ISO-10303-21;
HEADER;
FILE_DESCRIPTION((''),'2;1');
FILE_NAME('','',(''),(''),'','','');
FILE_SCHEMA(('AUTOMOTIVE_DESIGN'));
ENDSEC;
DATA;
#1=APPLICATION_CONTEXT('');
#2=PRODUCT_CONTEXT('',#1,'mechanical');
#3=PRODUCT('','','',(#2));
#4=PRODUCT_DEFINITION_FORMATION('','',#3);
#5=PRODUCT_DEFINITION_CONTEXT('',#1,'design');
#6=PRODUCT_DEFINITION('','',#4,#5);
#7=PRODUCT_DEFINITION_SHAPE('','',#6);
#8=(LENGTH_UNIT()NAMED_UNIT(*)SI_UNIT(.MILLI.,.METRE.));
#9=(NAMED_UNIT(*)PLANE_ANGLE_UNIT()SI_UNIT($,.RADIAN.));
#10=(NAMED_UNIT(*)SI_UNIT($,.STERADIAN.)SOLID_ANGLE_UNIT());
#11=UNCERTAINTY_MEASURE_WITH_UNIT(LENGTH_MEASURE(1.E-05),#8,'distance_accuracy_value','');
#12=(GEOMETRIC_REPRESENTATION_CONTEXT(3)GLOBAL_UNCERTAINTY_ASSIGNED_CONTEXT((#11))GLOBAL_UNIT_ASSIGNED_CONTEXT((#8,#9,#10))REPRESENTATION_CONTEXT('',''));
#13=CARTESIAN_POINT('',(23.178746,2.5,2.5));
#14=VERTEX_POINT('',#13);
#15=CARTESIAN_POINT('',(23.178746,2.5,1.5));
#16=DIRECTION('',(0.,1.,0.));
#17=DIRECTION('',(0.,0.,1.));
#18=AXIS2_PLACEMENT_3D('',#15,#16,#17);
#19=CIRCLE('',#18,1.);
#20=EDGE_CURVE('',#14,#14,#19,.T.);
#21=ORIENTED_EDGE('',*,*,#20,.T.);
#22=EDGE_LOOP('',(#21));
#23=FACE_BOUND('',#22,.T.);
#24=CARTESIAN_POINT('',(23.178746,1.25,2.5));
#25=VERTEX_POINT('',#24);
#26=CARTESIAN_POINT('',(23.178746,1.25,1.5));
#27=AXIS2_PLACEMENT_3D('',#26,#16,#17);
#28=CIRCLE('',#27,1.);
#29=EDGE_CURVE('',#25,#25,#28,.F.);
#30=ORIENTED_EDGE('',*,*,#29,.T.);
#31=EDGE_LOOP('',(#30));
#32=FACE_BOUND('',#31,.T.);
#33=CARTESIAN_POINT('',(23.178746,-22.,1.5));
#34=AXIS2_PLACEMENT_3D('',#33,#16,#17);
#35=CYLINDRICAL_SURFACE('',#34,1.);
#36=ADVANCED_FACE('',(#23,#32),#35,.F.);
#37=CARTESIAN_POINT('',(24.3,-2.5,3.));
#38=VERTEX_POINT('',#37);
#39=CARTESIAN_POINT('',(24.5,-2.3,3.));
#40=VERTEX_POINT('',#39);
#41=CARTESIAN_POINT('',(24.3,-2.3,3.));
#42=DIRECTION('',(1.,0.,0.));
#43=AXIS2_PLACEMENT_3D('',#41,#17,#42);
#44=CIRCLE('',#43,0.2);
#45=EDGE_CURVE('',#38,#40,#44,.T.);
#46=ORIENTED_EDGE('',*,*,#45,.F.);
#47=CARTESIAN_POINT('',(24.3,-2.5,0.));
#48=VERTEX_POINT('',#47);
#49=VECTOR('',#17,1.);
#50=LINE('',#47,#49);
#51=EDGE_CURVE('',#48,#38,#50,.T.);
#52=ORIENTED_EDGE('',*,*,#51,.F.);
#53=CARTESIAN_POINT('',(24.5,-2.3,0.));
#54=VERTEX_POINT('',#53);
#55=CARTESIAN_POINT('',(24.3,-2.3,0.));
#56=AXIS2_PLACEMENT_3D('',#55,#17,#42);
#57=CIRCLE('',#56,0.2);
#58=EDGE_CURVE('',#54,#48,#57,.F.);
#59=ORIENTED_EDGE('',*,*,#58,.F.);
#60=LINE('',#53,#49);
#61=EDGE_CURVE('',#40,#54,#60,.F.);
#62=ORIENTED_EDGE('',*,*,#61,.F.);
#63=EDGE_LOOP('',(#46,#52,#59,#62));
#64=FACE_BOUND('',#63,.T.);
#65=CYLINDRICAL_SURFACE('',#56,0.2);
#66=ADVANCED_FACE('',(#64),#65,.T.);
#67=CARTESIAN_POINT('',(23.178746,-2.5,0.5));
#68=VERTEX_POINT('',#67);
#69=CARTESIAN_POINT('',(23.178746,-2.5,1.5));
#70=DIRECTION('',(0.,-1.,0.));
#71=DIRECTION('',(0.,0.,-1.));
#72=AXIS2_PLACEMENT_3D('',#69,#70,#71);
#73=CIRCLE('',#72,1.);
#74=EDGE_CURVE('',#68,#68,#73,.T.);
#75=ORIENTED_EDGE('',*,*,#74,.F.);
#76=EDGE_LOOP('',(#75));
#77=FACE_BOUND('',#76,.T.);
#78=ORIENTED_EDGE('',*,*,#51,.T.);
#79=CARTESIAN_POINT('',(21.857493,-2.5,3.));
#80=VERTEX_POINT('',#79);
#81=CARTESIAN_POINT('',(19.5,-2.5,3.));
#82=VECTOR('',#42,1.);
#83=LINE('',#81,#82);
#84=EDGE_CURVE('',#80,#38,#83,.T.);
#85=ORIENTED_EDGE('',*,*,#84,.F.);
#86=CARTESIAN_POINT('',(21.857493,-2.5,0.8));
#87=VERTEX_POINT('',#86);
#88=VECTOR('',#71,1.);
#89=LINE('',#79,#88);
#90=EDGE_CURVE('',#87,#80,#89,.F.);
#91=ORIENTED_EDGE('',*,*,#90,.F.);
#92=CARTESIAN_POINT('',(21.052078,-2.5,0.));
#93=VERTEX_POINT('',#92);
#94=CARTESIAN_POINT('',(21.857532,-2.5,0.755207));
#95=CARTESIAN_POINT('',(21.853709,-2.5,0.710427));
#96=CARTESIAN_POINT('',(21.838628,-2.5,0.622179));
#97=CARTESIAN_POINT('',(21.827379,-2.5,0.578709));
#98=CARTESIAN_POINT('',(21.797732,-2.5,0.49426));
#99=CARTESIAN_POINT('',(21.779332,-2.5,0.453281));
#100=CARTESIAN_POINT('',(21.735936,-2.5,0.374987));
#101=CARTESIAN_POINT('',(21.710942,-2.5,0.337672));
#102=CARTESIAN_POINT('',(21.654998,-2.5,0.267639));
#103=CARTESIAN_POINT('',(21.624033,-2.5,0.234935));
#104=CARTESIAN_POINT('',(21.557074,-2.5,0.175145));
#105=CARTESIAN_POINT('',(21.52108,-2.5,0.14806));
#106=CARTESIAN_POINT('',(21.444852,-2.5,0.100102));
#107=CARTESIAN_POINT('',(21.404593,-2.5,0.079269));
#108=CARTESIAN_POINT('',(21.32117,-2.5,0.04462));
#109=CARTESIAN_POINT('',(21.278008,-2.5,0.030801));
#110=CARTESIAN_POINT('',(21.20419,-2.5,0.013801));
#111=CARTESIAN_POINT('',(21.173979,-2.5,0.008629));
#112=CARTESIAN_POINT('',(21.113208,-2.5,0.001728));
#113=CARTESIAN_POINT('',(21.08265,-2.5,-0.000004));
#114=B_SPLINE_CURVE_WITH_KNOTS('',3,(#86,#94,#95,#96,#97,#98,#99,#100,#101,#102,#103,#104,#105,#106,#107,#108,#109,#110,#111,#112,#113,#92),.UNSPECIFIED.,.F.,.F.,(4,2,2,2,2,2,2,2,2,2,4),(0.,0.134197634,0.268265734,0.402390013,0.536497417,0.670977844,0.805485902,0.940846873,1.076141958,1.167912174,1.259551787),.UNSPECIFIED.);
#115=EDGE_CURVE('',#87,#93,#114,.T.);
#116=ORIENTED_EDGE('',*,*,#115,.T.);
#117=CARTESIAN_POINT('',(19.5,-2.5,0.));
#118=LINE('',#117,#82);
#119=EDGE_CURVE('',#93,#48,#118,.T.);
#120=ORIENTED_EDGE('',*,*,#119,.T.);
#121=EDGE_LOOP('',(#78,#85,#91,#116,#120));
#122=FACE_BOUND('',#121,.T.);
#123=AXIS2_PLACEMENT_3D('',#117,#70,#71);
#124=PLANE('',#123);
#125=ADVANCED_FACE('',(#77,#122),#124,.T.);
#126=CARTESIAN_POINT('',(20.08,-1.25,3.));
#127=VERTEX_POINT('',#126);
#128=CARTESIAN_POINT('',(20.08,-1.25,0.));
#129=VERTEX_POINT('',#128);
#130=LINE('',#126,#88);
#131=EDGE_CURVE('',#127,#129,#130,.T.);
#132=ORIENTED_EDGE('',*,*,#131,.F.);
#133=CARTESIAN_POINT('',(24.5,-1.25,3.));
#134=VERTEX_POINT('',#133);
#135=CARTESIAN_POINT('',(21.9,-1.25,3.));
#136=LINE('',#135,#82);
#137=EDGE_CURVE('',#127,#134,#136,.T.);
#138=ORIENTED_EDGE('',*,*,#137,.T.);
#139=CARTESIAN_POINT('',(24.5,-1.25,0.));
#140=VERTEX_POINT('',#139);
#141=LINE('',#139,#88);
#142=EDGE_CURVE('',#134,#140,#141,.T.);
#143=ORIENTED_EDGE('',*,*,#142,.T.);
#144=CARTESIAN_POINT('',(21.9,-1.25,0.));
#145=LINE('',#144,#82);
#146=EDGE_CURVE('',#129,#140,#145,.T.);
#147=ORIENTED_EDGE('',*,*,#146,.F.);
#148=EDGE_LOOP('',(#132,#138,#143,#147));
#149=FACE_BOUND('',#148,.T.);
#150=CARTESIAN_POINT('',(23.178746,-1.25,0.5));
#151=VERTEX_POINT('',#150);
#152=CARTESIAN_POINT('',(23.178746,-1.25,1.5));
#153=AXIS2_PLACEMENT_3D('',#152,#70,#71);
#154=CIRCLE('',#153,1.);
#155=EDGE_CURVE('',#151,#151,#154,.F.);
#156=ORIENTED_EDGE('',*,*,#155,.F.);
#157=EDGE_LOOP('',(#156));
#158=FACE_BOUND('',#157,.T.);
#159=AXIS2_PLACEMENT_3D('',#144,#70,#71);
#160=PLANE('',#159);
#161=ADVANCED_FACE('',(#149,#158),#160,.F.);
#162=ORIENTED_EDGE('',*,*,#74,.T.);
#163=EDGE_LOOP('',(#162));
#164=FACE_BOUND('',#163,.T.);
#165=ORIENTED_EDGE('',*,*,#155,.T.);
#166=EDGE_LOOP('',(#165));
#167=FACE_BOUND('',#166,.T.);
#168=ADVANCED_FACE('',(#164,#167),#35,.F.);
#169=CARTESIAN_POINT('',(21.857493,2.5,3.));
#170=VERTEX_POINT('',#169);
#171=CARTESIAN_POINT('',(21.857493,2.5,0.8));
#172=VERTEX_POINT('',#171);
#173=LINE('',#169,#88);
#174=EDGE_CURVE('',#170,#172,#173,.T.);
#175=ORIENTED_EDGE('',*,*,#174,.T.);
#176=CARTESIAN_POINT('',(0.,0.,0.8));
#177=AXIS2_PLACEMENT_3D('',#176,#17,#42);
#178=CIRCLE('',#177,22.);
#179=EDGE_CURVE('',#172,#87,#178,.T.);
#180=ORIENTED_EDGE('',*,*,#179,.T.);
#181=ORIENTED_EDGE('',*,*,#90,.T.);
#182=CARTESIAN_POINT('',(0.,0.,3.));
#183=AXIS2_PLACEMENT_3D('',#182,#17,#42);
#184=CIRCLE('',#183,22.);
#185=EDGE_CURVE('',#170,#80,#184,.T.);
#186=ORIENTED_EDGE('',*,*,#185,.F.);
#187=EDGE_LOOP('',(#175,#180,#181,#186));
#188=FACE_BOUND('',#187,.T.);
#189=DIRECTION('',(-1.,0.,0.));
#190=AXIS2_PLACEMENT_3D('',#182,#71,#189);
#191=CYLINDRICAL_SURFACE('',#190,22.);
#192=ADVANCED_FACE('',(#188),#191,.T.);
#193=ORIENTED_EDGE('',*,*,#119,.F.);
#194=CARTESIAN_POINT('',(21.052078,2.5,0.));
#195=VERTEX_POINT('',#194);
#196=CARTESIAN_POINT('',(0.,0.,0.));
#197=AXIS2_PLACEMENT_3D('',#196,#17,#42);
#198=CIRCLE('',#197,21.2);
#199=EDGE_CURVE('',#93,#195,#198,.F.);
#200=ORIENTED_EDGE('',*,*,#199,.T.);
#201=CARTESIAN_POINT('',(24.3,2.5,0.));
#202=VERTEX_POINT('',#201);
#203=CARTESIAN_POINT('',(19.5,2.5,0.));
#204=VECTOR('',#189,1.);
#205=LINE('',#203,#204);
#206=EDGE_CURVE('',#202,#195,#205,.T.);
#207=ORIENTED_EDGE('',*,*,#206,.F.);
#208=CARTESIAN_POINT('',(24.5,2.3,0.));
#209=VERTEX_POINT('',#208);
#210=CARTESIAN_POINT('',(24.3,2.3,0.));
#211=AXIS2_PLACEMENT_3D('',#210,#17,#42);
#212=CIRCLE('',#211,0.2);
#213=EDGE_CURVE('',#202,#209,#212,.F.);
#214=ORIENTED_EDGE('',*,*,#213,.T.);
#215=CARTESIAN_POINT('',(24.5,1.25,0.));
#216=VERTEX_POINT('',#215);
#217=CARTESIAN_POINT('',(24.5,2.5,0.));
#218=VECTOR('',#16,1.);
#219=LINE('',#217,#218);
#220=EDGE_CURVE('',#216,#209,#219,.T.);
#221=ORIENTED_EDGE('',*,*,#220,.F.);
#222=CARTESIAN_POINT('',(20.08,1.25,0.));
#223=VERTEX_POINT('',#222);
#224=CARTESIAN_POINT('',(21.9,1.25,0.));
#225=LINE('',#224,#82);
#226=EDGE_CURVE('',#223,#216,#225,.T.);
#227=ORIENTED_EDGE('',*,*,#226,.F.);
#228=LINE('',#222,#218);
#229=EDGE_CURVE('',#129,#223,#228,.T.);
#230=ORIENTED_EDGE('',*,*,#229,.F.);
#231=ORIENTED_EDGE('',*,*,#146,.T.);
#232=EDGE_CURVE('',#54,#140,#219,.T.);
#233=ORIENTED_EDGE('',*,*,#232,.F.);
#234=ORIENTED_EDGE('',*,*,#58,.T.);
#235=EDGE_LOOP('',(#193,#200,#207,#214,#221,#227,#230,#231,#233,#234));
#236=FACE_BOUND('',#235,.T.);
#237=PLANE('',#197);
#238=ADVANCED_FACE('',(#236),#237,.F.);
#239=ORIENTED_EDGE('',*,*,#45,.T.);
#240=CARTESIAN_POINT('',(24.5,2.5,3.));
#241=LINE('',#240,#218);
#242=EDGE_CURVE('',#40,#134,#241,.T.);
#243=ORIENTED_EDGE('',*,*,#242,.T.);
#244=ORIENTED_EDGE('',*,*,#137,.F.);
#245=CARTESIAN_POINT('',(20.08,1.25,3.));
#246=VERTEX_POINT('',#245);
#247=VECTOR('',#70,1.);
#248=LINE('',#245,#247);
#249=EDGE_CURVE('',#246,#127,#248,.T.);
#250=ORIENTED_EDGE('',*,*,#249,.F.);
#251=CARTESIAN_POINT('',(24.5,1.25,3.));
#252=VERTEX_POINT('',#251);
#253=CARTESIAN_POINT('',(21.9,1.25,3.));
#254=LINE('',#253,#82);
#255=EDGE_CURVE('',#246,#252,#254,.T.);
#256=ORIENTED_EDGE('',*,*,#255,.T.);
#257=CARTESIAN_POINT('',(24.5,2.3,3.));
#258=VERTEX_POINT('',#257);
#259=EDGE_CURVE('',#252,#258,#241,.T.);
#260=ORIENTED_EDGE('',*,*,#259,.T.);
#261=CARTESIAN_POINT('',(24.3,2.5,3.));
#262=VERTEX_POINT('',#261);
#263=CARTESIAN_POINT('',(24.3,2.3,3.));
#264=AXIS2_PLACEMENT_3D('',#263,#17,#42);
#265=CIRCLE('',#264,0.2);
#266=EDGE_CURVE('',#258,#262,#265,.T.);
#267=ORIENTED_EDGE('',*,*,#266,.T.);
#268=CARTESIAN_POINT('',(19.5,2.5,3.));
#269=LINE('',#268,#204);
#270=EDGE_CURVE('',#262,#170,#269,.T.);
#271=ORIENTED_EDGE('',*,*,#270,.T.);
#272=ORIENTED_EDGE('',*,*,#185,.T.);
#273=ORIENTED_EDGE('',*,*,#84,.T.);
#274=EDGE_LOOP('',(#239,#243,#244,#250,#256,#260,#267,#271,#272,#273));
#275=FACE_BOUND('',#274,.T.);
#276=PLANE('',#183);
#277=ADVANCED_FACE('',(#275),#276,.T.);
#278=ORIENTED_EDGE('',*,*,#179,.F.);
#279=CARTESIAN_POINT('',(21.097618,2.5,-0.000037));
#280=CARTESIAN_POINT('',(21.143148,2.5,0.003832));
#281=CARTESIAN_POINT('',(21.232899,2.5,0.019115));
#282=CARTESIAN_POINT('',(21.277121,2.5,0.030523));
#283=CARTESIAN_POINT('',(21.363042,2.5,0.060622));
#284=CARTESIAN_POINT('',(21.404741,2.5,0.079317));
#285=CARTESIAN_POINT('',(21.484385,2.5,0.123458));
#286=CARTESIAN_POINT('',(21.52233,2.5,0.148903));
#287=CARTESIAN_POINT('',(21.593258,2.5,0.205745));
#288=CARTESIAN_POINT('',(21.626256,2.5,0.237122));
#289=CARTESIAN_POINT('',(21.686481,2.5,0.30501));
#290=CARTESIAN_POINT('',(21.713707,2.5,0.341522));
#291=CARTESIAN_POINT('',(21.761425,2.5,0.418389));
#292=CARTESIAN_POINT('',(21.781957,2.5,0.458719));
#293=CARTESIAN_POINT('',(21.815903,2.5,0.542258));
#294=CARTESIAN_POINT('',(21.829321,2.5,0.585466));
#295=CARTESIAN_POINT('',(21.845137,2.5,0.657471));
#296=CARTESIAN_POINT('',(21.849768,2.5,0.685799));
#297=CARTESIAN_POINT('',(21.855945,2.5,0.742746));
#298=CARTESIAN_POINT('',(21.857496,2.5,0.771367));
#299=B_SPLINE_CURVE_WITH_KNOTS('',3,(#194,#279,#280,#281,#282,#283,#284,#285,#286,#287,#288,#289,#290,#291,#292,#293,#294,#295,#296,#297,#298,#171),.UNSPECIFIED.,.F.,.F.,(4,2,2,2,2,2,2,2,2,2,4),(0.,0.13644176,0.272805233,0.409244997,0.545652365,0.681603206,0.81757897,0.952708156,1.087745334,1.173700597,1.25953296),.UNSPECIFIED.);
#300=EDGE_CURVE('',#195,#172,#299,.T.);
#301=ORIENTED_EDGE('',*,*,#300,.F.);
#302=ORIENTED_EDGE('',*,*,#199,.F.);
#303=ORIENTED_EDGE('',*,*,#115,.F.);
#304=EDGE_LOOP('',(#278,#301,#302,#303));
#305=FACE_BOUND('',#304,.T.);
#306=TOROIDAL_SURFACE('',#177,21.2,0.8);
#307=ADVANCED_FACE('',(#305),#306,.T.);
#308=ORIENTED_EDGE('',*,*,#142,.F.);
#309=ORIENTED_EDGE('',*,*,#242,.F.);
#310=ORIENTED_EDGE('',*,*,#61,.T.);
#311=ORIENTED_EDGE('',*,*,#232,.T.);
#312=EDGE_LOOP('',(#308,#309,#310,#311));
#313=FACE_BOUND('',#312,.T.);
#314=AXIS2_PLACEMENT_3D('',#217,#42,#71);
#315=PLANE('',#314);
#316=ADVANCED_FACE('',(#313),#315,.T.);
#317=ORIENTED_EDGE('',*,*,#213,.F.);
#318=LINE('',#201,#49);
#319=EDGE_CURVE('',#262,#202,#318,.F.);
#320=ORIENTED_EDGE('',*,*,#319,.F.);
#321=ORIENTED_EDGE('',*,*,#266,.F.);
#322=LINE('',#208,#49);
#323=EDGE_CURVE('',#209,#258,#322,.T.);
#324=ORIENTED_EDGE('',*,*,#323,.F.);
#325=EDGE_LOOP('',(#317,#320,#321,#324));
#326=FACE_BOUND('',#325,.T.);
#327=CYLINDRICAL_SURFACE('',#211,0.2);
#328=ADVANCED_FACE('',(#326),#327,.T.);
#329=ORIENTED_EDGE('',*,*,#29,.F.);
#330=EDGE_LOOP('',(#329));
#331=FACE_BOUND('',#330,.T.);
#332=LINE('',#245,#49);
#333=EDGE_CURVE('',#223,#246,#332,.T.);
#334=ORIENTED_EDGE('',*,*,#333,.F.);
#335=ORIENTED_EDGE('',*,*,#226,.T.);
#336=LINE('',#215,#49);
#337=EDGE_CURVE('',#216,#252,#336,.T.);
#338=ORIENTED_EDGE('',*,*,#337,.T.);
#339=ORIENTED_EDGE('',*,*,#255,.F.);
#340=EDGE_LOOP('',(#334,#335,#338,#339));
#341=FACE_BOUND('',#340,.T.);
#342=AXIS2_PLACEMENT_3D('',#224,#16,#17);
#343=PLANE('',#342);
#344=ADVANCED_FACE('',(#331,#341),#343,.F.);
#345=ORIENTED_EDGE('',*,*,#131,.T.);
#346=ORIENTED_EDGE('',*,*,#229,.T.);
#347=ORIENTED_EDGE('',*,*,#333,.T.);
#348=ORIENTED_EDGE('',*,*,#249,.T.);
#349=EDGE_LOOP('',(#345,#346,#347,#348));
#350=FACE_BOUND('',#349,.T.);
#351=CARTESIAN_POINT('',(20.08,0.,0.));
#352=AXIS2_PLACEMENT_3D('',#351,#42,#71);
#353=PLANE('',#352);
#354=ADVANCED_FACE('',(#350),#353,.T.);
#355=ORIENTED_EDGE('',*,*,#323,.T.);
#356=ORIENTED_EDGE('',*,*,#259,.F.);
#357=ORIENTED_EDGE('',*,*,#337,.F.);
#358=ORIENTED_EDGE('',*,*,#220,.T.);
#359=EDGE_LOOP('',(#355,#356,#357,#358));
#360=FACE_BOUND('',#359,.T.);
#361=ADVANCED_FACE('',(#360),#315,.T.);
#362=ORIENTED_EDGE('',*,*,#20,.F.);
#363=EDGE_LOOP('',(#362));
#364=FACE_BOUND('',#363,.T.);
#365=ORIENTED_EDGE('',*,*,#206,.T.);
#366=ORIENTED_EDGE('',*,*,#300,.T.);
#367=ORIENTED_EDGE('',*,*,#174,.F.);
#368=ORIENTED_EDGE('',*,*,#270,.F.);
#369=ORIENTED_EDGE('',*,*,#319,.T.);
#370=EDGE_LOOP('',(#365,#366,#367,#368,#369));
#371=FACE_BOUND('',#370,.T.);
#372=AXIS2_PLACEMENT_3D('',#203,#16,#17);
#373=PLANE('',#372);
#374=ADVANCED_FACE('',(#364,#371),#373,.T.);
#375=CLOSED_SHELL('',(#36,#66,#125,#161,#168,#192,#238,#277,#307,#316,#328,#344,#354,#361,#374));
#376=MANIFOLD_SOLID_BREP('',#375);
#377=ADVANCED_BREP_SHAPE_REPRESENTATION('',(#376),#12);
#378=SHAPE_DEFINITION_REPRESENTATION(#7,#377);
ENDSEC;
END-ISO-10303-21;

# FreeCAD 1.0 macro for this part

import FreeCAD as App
import Part
import Sketcher

V = App.Vector
Q = App.Units.Quantity


def edges_at(feature, points):
    """Names of the edges that pass closest to the given points."""
    edges = feature.Shape.Edges
    near = lambda p: min(range(len(edges)), key=lambda i: edges[i].distToShape(Part.Vertex(*p))[0])
    return sorted({f"Edge{near(p) + 1}" for p in points})


def add_polygon(sketch, points):
    """Adds a closed chain of lines whose ends are joined by coincident constraints."""
    first, n = sketch.GeometryCount, len(points)
    for a, b in zip(points, points[1:] + points[:1]):
        sketch.addGeometry(Part.LineSegment(App.Vector(*a, 0), App.Vector(*b, 0)), False)
    for i in range(n):
        sketch.addConstraint(Sketcher.Constraint("Coincident", first + i, 2, first + (i + 1) % n, 1))

doc = App.newDocument("Part")
body = doc.addObject("PartDesign::Body", "Body")

sketch1 = body.newObject("Sketcher::SketchObject", "Sketch")
sketch1.AttachmentSupport = (doc.getObject("XY_Plane"), [""])
sketch1.MapMode = "FlatFace"
sketch1.addGeometry(Part.Circle(V(0, 0, 0), V(0, 0, 1), 22), False)
sketch1.addConstraint([
    Sketcher.Constraint("Coincident", 0, 3, -1, 1),
    Sketcher.Constraint("Diameter", 0, Q("44 mm")),
])
pad1 = body.newObject("PartDesign::Pad", "Pad")
pad1.Profile = sketch1
pad1.Length = 3

sketch2 = body.newObject("Sketcher::SketchObject", "Sketch001")
sketch2.AttachmentSupport = (doc.getObject("XY_Plane"), [""])
sketch2.MapMode = "FlatFace"
sketch2.AttachmentOffset = App.Placement(V(0, 0, 3), App.Rotation())
add_polygon(sketch2, [(19.5, 2.5), (19.5, -2.5), (24.5, -2.5), (24.5, 2.5)])
sketch2.addConstraint([
    Sketcher.Constraint("Vertical", 0),
    Sketcher.Constraint("Horizontal", 1),
    Sketcher.Constraint("Vertical", 2),
    Sketcher.Constraint("Horizontal", 3),
    Sketcher.Constraint("Equal", 3, 0),
    Sketcher.Constraint("DistanceX", 1, 1, 1, 2, Q("5 mm")),
    Sketcher.Constraint("DistanceX", -1, 1, 0, 2, Q("19.5 mm")),
    Sketcher.Constraint("DistanceY", 0, 2, -1, 1, Q("2.5 mm")),
])
pad2 = body.newObject("PartDesign::Pad", "Pad001")
pad2.Profile = sketch2
pad2.Length = 3
pad2.Reversed = True

sketch3 = body.newObject("Sketcher::SketchObject", "Sketch002")
sketch3.AttachmentSupport = (doc.getObject("XZ_Plane"), [""])
sketch3.MapMode = "FlatFace"
sketch3.AttachmentOffset = App.Placement(V(0, 0, -2.5), App.Rotation())
sketch3.addGeometry(Part.Circle(V(23.178746, 1.5, 0), V(0, 0, 1), 1), False)
sketch3.addConstraint([
    Sketcher.Constraint("Diameter", 0, Q("2 mm")),
    Sketcher.Constraint("DistanceY", -1, 1, 0, 3, Q("1.5 mm")),
    Sketcher.Constraint("DistanceX", -1, 1, 0, 3, Q("23.178746 mm")),
])
pocket1 = body.newObject("PartDesign::Pocket", "Pocket")
pocket1.Profile = sketch3
pocket1.Type = "ThroughAll"
pocket1.Midplane = True

sketch4 = body.newObject("Sketcher::SketchObject", "Sketch003")
sketch4.AttachmentSupport = (doc.getObject("YZ_Plane"), [""])
sketch4.MapMode = "FlatFace"
sketch4.AttachmentOffset = App.Placement(V(0, 0, 24.5), App.Rotation())
add_polygon(sketch4, [(1.25, 3), (-1.25, 3), (-1.25, 0), (1.25, 0)])
sketch4.addConstraint([
    Sketcher.Constraint("Horizontal", 0),
    Sketcher.Constraint("Vertical", 1),
    Sketcher.Constraint("Horizontal", 2),
    Sketcher.Constraint("Vertical", 3),
    Sketcher.Constraint("Symmetric", 1, 2, 2, 2, -1, 1),
    Sketcher.Constraint("DistanceY", 1, 2, 1, 1, Q("3 mm")),
    Sketcher.Constraint("DistanceX", 0, 2, 0, 1, Q("2.5 mm")),
])
pocket2 = body.newObject("PartDesign::Pocket", "Pocket001")
pocket2.Profile = sketch4
pocket2.Length = 2.6
doc.recompute()

fillet = body.newObject("PartDesign::Fillet", "Fillet")
fillet.Base = (pocket2, edges_at(pocket2, [(24.5, -2.5, 1.5), (24.5, 2.5, 1.5)]))
fillet.Radius = 0.2
doc.recompute()

fillet2 = body.newObject("PartDesign::Fillet", "Fillet001")
fillet2.Base = (fillet, edges_at(fillet, [(-22, 0, 0)]))
fillet2.Radius = 0.8

sketch5 = body.newObject("Sketcher::SketchObject", "Sketch004")
sketch5.AttachmentSupport = (doc.getObject("YZ_Plane"), [""])
sketch5.MapMode = "FlatFace"
sketch5.AttachmentOffset = App.Placement(V(0, 0, 21.9), App.Rotation())
add_polygon(sketch5, [(1.25, 3), (-1.25, 3), (-1.25, 0), (1.25, 0)])
sketch5.addConstraint([
    Sketcher.Constraint("Horizontal", 0),
    Sketcher.Constraint("Vertical", 1),
    Sketcher.Constraint("Horizontal", 2),
    Sketcher.Constraint("Vertical", 3),
    Sketcher.Constraint("Symmetric", 1, 2, 2, 2, -1, 1),
    Sketcher.Constraint("DistanceY", 1, 2, 1, 1, Q("3 mm")),
    Sketcher.Constraint("DistanceX", 0, 2, 0, 1, Q("2.5 mm")),
])
pocket3 = body.newObject("PartDesign::Pocket", "Pocket002")
pocket3.Profile = sketch5
pocket3.Length = 1.82

doc.recompute()
